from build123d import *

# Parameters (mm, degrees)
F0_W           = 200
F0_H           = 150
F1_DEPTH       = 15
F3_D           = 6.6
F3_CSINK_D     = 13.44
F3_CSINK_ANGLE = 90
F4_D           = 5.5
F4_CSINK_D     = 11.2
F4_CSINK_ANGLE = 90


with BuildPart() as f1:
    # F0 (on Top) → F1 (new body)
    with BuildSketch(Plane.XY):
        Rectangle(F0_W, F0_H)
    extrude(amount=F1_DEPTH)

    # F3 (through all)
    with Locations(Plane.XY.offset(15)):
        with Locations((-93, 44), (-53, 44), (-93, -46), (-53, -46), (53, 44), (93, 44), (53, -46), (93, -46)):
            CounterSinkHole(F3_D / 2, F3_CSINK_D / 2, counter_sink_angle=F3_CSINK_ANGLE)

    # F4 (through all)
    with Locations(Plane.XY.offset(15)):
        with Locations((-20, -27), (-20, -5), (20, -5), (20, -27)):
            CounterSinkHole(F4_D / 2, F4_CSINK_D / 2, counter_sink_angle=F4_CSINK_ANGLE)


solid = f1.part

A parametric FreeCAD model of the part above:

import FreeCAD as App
import Part
import Sketcher

V = App.Vector
Q = App.Units.Quantity


def add_polygon(sketch, points):
    """Adds a closed chain of lines whose ends are joined by coincident constraints."""
    first, n = sketch.GeometryCount, len(points)
    for a, b in zip(points, points[1:] + points[:1]):
        sketch.addGeometry(Part.LineSegment(App.Vector(*a, 0), App.Vector(*b, 0)), False)
    for i in range(n):
        sketch.addConstraint(Sketcher.Constraint("Coincident", first + i, 2, first + (i + 1) % n, 1))

doc = App.newDocument("Part")
body = doc.addObject("PartDesign::Body", "Body")

# Sketch on XY plane
sketch1 = body.newObject("Sketcher::SketchObject", "Sketch")
sketch1.AttachmentSupport = (doc.getObject("XY_Plane"), [""])
sketch1.MapMode = "FlatFace"
add_polygon(sketch1, [(-100, 75), (-100, -75), (100, -75), (100, 75)])  # lines 0-3
sketch1.addConstraint(Sketcher.Constraint("Vertical", 0))
sketch1.addConstraint(Sketcher.Constraint("Horizontal", 1))
sketch1.addConstraint(Sketcher.Constraint("Vertical", 2))
sketch1.addConstraint(Sketcher.Constraint("Horizontal", 3))
sketch1.addConstraint(Sketcher.Constraint("Symmetric", 0, 2, 2, 2, -1, 1))
sketch1.addConstraint(Sketcher.Constraint("DistanceX", 1, 1, 1, 2, Q("200 mm")))
sketch1.addConstraint(Sketcher.Constraint("DistanceY", 0, 2, 0, 1, Q("150 mm")))
pad1 = body.newObject("PartDesign::Pad", "Pad")
pad1.Profile = sketch1
pad1.Length = 15

# Sketch on XY plane
sketch2 = body.newObject("Sketcher::SketchObject", "Sketch001")
sketch2.AttachmentSupport = (doc.getObject("XY_Plane"), [""])
sketch2.MapMode = "FlatFace"
sketch2.AttachmentOffset = App.Placement(V(0, 0, 15), App.Rotation())
sketch2.addGeometry(Part.Circle(V(-93, 44, 0), V(0, 0, 1), 3.3), False)
sketch2.addGeometry(Part.Circle(V(-53, 44, 0), V(0, 0, 1), 3.3), False)
sketch2.addGeometry(Part.Circle(V(-93, -46, 0), V(0, 0, 1), 3.3), False)
sketch2.addGeometry(Part.Circle(V(-53, -46, 0), V(0, 0, 1), 3.3), False)
sketch2.addGeometry(Part.Circle(V(53, 44, 0), V(0, 0, 1), 3.3), False)
sketch2.addGeometry(Part.Circle(V(93, 44, 0), V(0, 0, 1), 3.3), False)
sketch2.addGeometry(Part.Circle(V(53, -46, 0), V(0, 0, 1), 3.3), False)
sketch2.addGeometry(Part.Circle(V(93, -46, 0), V(0, 0, 1), 3.3), False)
sketch2.addConstraint(Sketcher.Constraint("Equal", 0, 1))
sketch2.addConstraint(Sketcher.Constraint("Equal", 1, 2))
sketch2.addConstraint(Sketcher.Constraint("Equal", 2, 3))
sketch2.addConstraint(Sketcher.Constraint("Equal", 3, 4))
sketch2.addConstraint(Sketcher.Constraint("Equal", 4, 5))
sketch2.addConstraint(Sketcher.Constraint("Equal", 5, 6))
sketch2.addConstraint(Sketcher.Constraint("Equal", 6, 7))
sketch2.addConstraint(Sketcher.Constraint("Symmetric", 1, 3, 4, 3, -2))
sketch2.addConstraint(Sketcher.Constraint("Symmetric", 0, 3, 5, 3, -2))
sketch2.addConstraint(Sketcher.Constraint("Symmetric", 3, 3, 6, 3, -2))
sketch2.addConstraint(Sketcher.Constraint("Symmetric", 2, 3, 7, 3, -2))
sketch2.addConstraint(Sketcher.Constraint("Horizontal", 0, 3, 1, 3))
sketch2.addConstraint(Sketcher.Constraint("Horizontal", 2, 3, 3, 3))
sketch2.addConstraint(Sketcher.Constraint("Vertical", 0, 3, 2, 3))
sketch2.addConstraint(Sketcher.Constraint("Vertical", 1, 3, 3, 3))
sketch2.addConstraint(Sketcher.Constraint("Diameter", 0, Q("6.6 mm")))
sketch2.addConstraint(Sketcher.Constraint("DistanceX", 0, 3, -1, 1, Q("93 mm")))
sketch2.addConstraint(Sketcher.Constraint("DistanceY", -1, 1, 0, 3, Q("44 mm")))
sketch2.addConstraint(Sketcher.Constraint("DistanceX", 1, 3, -1, 1, Q("53 mm")))
sketch2.addConstraint(Sketcher.Constraint("DistanceY", 2, 3, -1, 1, Q("46 mm")))
doc.recompute()
hole = body.newObject("PartDesign::Hole", "Hole")
hole.Profile = sketch2
hole.ThreadType = "None"
hole.Diameter = 6.6
hole.DepthType = "ThroughAll"
hole.HoleCutType = "Countersink"
hole.HoleCutDiameter = 13.44
hole.HoleCutCountersinkAngle = 90

# Sketch on XY plane
sketch3 = body.newObject("Sketcher::SketchObject", "Sketch002")
sketch3.AttachmentSupport = (doc.getObject("XY_Plane"), [""])
sketch3.MapMode = "FlatFace"
sketch3.AttachmentOffset = App.Placement(V(0, 0, 15), App.Rotation())
sketch3.addGeometry(Part.Circle(V(-20, -27, 0), V(0, 0, 1), 2.75), False)
sketch3.addGeometry(Part.Circle(V(-20, -5, 0), V(0, 0, 1), 2.75), False)
sketch3.addGeometry(Part.Circle(V(20, -5, 0), V(0, 0, 1), 2.75), False)
sketch3.addGeometry(Part.Circle(V(20, -27, 0), V(0, 0, 1), 2.75), False)
sketch3.addConstraint(Sketcher.Constraint("Equal", 0, 1))
sketch3.addConstraint(Sketcher.Constraint("Equal", 1, 2))
sketch3.addConstraint(Sketcher.Constraint("Equal", 2, 3))
sketch3.addConstraint(Sketcher.Constraint("Symmetric", 1, 3, 2, 3, -2))
sketch3.addConstraint(Sketcher.Constraint("Symmetric", 0, 3, 3, 3, -2))
sketch3.addConstraint(Sketcher.Constraint("Vertical", 0, 3, 1, 3))
sketch3.addConstraint(Sketcher.Constraint("Diameter", 0, Q("5.5 mm")))
sketch3.addConstraint(Sketcher.Constraint("DistanceX", 0, 3, -1, 1, Q("20 mm")))
sketch3.addConstraint(Sketcher.Constraint("DistanceY", 0, 3, -1, 1, Q("27 mm")))
sketch3.addConstraint(Sketcher.Constraint("DistanceY", 1, 3, -1, 1, Q("5 mm")))
doc.recompute()
hole2 = body.newObject("PartDesign::Hole", "Hole001")
hole2.Profile = sketch3
hole2.ThreadType = "None"
hole2.Diameter = 5.5
hole2.DepthType = "ThroughAll"
hole2.HoleCutType = "Countersink"
hole2.HoleCutDiameter = 11.2
hole2.HoleCutCountersinkAngle = 90

doc.recompute()
